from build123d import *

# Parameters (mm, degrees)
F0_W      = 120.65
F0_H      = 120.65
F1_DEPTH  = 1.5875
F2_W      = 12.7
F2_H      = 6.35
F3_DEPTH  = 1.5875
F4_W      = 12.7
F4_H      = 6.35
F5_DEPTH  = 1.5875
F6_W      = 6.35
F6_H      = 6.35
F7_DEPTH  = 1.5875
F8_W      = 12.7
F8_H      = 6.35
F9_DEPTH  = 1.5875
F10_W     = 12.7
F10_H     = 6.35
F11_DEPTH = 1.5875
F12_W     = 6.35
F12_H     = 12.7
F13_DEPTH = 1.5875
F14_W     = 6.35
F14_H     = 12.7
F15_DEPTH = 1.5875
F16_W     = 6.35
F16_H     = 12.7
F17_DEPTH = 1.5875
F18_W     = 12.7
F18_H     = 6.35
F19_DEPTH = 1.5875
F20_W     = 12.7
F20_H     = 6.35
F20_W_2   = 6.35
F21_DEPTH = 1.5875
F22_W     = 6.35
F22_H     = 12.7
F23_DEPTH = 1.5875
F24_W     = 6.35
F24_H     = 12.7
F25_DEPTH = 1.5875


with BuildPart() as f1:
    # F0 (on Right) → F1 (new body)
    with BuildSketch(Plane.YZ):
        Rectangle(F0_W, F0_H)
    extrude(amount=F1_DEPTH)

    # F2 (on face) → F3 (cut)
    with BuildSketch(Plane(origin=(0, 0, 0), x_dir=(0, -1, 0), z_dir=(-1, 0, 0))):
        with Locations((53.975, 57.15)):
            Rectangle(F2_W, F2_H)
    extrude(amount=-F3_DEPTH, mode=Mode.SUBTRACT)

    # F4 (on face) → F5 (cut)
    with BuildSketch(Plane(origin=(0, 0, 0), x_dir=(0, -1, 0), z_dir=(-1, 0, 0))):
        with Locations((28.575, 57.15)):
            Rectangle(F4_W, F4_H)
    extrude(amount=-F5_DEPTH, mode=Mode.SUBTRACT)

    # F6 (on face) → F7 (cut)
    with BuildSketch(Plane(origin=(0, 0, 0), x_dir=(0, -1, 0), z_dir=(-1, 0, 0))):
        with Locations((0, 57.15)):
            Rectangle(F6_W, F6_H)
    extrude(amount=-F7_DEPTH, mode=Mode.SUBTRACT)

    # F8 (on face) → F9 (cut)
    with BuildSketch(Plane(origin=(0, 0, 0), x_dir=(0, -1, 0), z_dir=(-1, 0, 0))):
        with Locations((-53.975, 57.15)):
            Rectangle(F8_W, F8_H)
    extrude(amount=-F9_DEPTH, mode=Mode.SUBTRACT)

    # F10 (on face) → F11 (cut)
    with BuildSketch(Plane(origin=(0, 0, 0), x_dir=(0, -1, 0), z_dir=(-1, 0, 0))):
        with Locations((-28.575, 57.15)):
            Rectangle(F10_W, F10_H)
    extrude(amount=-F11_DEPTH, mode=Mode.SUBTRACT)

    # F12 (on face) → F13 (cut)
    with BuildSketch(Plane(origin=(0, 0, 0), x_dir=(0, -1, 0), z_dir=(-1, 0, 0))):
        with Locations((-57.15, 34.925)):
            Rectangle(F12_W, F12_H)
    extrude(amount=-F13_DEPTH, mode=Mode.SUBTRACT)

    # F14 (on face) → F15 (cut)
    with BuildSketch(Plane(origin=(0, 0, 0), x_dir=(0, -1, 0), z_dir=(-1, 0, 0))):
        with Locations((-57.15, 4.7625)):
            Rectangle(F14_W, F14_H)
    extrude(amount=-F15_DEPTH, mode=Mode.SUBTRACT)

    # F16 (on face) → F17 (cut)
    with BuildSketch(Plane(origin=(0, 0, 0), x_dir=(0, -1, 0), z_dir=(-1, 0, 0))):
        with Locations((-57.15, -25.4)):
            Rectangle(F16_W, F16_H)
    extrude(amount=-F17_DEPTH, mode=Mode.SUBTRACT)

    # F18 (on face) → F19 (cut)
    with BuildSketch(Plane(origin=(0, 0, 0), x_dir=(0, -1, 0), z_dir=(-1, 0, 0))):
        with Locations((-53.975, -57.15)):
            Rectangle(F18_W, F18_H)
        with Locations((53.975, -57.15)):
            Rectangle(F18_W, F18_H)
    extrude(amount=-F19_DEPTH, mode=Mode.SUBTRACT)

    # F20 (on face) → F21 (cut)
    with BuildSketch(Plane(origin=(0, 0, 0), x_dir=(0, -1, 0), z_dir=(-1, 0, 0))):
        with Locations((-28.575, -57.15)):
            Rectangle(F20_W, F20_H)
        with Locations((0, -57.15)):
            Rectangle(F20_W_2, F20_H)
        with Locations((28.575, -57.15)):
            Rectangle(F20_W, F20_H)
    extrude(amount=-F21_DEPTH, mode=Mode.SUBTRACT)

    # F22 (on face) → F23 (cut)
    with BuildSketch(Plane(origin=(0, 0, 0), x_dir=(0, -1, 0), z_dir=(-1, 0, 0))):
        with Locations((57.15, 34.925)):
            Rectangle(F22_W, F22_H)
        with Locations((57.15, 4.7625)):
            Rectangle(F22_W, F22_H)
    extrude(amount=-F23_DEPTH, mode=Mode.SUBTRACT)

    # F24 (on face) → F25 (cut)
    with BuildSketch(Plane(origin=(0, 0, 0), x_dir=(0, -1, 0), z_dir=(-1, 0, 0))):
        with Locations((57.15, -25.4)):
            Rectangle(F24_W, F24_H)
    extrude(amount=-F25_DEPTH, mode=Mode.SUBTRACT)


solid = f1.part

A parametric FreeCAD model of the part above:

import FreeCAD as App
import Part
import Sketcher
from FreeCAD import Vector
Q = App.Units.Quantity

doc = App.newDocument("Part")
body = doc.addObject("PartDesign::Body", "Body")

# Sketch on YZ plane
sketch1 = body.newObject("Sketcher::SketchObject", "Sketch")
sketch1.AttachmentSupport = (doc.getObject("YZ_Plane"), [""])
sketch1.MapMode = "FlatFace"
sketch1.addGeometry(Part.LineSegment(Vector(-60, 60, 0), Vector(-60, -60, 0)), False)
sketch1.addGeometry(Part.LineSegment(Vector(-60, -60, 0), Vector(60, -60, 0)), False)
sketch1.addGeometry(Part.LineSegment(Vector(60, -60, 0), Vector(60, 60, 0)), False)
sketch1.addGeometry(Part.LineSegment(Vector(60, 60, 0), Vector(-60, 60, 0)), False)
sketch1.addConstraint(Sketcher.Constraint("Coincident", 0, 2, 1, 1))
sketch1.addConstraint(Sketcher.Constraint("Coincident", 1, 2, 2, 1))
sketch1.addConstraint(Sketcher.Constraint("Coincident", 2, 2, 3, 1))
sketch1.addConstraint(Sketcher.Constraint("Coincident", 3, 2, 0, 1))
sketch1.addConstraint(Sketcher.Constraint("Vertical", 0))
sketch1.addConstraint(Sketcher.Constraint("Horizontal", 1))
sketch1.addConstraint(Sketcher.Constraint("Vertical", 2))
sketch1.addConstraint(Sketcher.Constraint("Horizontal", 3))
sketch1.addConstraint(Sketcher.Constraint("Symmetric", 0, 2, 2, 2, -1, 1))
sketch1.addConstraint(Sketcher.Constraint("Equal", 3, 0))
sketch1.addConstraint(Sketcher.Constraint("DistanceX", 1, 1, 1, 2, Q("4.75 in")))
pad1 = body.newObject("PartDesign::Pad", "Pad")
pad1.Profile = sketch1
pad1.Length = Q("0.0625 in")

# Sketch on YZ plane
sketch2 = body.newObject("Sketcher::SketchObject", "Sketch001")
sketch2.AttachmentSupport = (doc.getObject("YZ_Plane"), [""])
sketch2.MapMode = "FlatFace"
sketch2.addGeometry(Part.LineSegment(Vector(-48, 60, 0), Vector(-48, 54, 0)), False)
sketch2.addGeometry(Part.LineSegment(Vector(-48, 54, 0), Vector(-60, 54, 0)), False)
sketch2.addGeometry(Part.LineSegment(Vector(-60, 54, 0), Vector(-60, 60, 0)), False)
sketch2.addGeometry(Part.LineSegment(Vector(-60, 60, 0), Vector(-48, 60, 0)), False)
sketch2.addConstraint(Sketcher.Constraint("Coincident", 0, 2, 1, 1))
sketch2.addConstraint(Sketcher.Constraint("Coincident", 1, 2, 2, 1))
sketch2.addConstraint(Sketcher.Constraint("Coincident", 2, 2, 3, 1))
sketch2.addConstraint(Sketcher.Constraint("Coincident", 3, 2, 0, 1))
sketch2.addConstraint(Sketcher.Constraint("Vertical", 0))
sketch2.addConstraint(Sketcher.Constraint("Horizontal", 1))
sketch2.addConstraint(Sketcher.Constraint("Vertical", 2))
sketch2.addConstraint(Sketcher.Constraint("Horizontal", 3))
sketch2.addConstraint(Sketcher.Constraint("DistanceX", 1, 2, 1, 1, Q("0.5 in")))
sketch2.addConstraint(Sketcher.Constraint("DistanceY", 0, 2, 0, 1, Q("0.25 in")))
sketch2.addConstraint(Sketcher.Constraint("DistanceX", 0, 2, -1, 1, Q("1.875 in")))
sketch2.addConstraint(Sketcher.Constraint("DistanceY", -1, 1, 0, 2, Q("2.125 in")))
pocket1 = body.newObject("PartDesign::Pocket", "Pocket")
pocket1.Profile = sketch2
pocket1.Length = Q("0.0625 in")
pocket1.Reversed = True

# Sketch on YZ plane
sketch3 = body.newObject("Sketcher::SketchObject", "Sketch002")
sketch3.AttachmentSupport = (doc.getObject("YZ_Plane"), [""])
sketch3.MapMode = "FlatFace"
sketch3.addGeometry(Part.LineSegment(Vector(-22, 60, 0), Vector(-22, 54, 0)), False)
sketch3.addGeometry(Part.LineSegment(Vector(-22, 54, 0), Vector(-35, 54, 0)), False)
sketch3.addGeometry(Part.LineSegment(Vector(-35, 54, 0), Vector(-35, 60, 0)), False)
sketch3.addGeometry(Part.LineSegment(Vector(-35, 60, 0), Vector(-22, 60, 0)), False)
sketch3.addConstraint(Sketcher.Constraint("Coincident", 0, 2, 1, 1))
sketch3.addConstraint(Sketcher.Constraint("Coincident", 1, 2, 2, 1))
sketch3.addConstraint(Sketcher.Constraint("Coincident", 2, 2, 3, 1))
sketch3.addConstraint(Sketcher.Constraint("Coincident", 3, 2, 0, 1))
sketch3.addConstraint(Sketcher.Constraint("Vertical", 0))
sketch3.addConstraint(Sketcher.Constraint("Horizontal", 1))
sketch3.addConstraint(Sketcher.Constraint("Vertical", 2))
sketch3.addConstraint(Sketcher.Constraint("Horizontal", 3))
sketch3.addConstraint(Sketcher.Constraint("DistanceX", 1, 2, 1, 1, Q("0.5 in")))
sketch3.addConstraint(Sketcher.Constraint("DistanceY", 0, 2, 0, 1, Q("0.25 in")))
sketch3.addConstraint(Sketcher.Constraint("DistanceX", 0, 2, -1, 1, Q("0.875 in")))
sketch3.addConstraint(Sketcher.Constraint("DistanceY", -1, 1, 0, 2, Q("2.125 in")))
pocket2 = body.newObject("PartDesign::Pocket", "Pocket001")
pocket2.Profile = sketch3
pocket2.Length = Q("0.0625 in")
pocket2.Reversed = True

# Sketch on YZ plane
sketch4 = body.newObject("Sketcher::SketchObject", "Sketch003")
sketch4.AttachmentSupport = (doc.getObject("YZ_Plane"), [""])
sketch4.MapMode = "FlatFace"
sketch4.addGeometry(Part.LineSegment(Vector(3, 60, 0), Vector(3, 54, 0)), False)
sketch4.addGeometry(Part.LineSegment(Vector(3, 54, 0), Vector(-3, 54, 0)), False)
sketch4.addGeometry(Part.LineSegment(Vector(-3, 54, 0), Vector(-3, 60, 0)), False)
sketch4.addGeometry(Part.LineSegment(Vector(-3, 60, 0), Vector(3, 60, 0)), False)
sketch4.addConstraint(Sketcher.Constraint("Coincident", 0, 2, 1, 1))
sketch4.addConstraint(Sketcher.Constraint("Coincident", 1, 2, 2, 1))
sketch4.addConstraint(Sketcher.Constraint("Coincident", 2, 2, 3, 1))
sketch4.addConstraint(Sketcher.Constraint("Coincident", 3, 2, 0, 1))
sketch4.addConstraint(Sketcher.Constraint("Vertical", 0))
sketch4.addConstraint(Sketcher.Constraint("Horizontal", 1))
sketch4.addConstraint(Sketcher.Constraint("Vertical", 2))
sketch4.addConstraint(Sketcher.Constraint("Horizontal", 3))
sketch4.addConstraint(Sketcher.Constraint("Equal", 3, 0))
sketch4.addConstraint(Sketcher.Constraint("DistanceX", 1, 2, 1, 1, Q("0.25 in")))
sketch4.addConstraint(Sketcher.Constraint("DistanceX", -1, 1, 0, 2, Q("0.125 in")))
sketch4.addConstraint(Sketcher.Constraint("DistanceY", -1, 1, 0, 2, Q("2.125 in")))
pocket3 = body.newObject("PartDesign::Pocket", "Pocket002")
pocket3.Profile = sketch4
pocket3.Length = Q("0.0625 in")
pocket3.Reversed = True

# Sketch on YZ plane
sketch5 = body.newObject("Sketcher::SketchObject", "Sketch004")
sketch5.AttachmentSupport = (doc.getObject("YZ_Plane"), [""])
sketch5.MapMode = "FlatFace"
sketch5.addGeometry(Part.LineSegment(Vector(60, 60, 0), Vector(60, 54, 0)), False)
sketch5.addGeometry(Part.LineSegment(Vector(60, 54, 0), Vector(48, 54, 0)), False)
sketch5.addGeometry(Part.LineSegment(Vector(48, 54, 0), Vector(48, 60, 0)), False)
sketch5.addGeometry(Part.LineSegment(Vector(48, 60, 0), Vector(60, 60, 0)), False)
sketch5.addConstraint(Sketcher.Constraint("Coincident", 0, 2, 1, 1))
sketch5.addConstraint(Sketcher.Constraint("Coincident", 1, 2, 2, 1))
sketch5.addConstraint(Sketcher.Constraint("Coincident", 2, 2, 3, 1))
sketch5.addConstraint(Sketcher.Constraint("Coincident", 3, 2, 0, 1))
sketch5.addConstraint(Sketcher.Constraint("Vertical", 0))
sketch5.addConstraint(Sketcher.Constraint("Horizontal", 1))
sketch5.addConstraint(Sketcher.Constraint("Vertical", 2))
sketch5.addConstraint(Sketcher.Constraint("Horizontal", 3))
sketch5.addConstraint(Sketcher.Constraint("DistanceX", 1, 2, 1, 1, Q("0.5 in")))
sketch5.addConstraint(Sketcher.Constraint("DistanceY", 0, 2, 0, 1, Q("0.25 in")))
sketch5.addConstraint(Sketcher.Constraint("DistanceX", -1, 1, 0, 2, Q("2.375 in")))
sketch5.addConstraint(Sketcher.Constraint("DistanceY", -1, 1, 0, 2, Q("2.125 in")))
pocket4 = body.newObject("PartDesign::Pocket", "Pocket003")
pocket4.Profile = sketch5
pocket4.Length = Q("0.0625 in")
pocket4.Reversed = True

# Sketch on YZ plane
sketch6 = body.newObject("Sketcher::SketchObject", "Sketch005")
sketch6.AttachmentSupport = (doc.getObject("YZ_Plane"), [""])
sketch6.MapMode = "FlatFace"
sketch6.addGeometry(Part.LineSegment(Vector(35, 60, 0), Vector(35, 54, 0)), False)
sketch6.addGeometry(Part.LineSegment(Vector(35, 54, 0), Vector(22, 54, 0)), False)
sketch6.addGeometry(Part.LineSegment(Vector(22, 54, 0), Vector(22, 60, 0)), False)
sketch6.addGeometry(Part.LineSegment(Vector(22, 60, 0), Vector(35, 60, 0)), False)
sketch6.addConstraint(Sketcher.Constraint("Coincident", 0, 2, 1, 1))
sketch6.addConstraint(Sketcher.Constraint("Coincident", 1, 2, 2, 1))
sketch6.addConstraint(Sketcher.Constraint("Coincident", 2, 2, 3, 1))
sketch6.addConstraint(Sketcher.Constraint("Coincident", 3, 2, 0, 1))
sketch6.addConstraint(Sketcher.Constraint("Vertical", 0))
sketch6.addConstraint(Sketcher.Constraint("Horizontal", 1))
sketch6.addConstraint(Sketcher.Constraint("Vertical", 2))
sketch6.addConstraint(Sketcher.Constraint("Horizontal", 3))
sketch6.addConstraint(Sketcher.Constraint("DistanceX", 1, 2, 1, 1, Q("0.5 in")))
sketch6.addConstraint(Sketcher.Constraint("DistanceY", 0, 2, 0, 1, Q("0.25 in")))
sketch6.addConstraint(Sketcher.Constraint("DistanceX", -1, 1, 0, 2, Q("1.375 in")))
sketch6.addConstraint(Sketcher.Constraint("DistanceY", -1, 1, 0, 2, Q("2.125 in")))
pocket5 = body.newObject("PartDesign::Pocket", "Pocket004")
pocket5.Profile = sketch6
pocket5.Length = Q("0.0625 in")
pocket5.Reversed = True

# Sketch on YZ plane
sketch7 = body.newObject("Sketcher::SketchObject", "Sketch006")
sketch7.AttachmentSupport = (doc.getObject("YZ_Plane"), [""])
sketch7.MapMode = "FlatFace"
sketch7.addGeometry(Part.LineSegment(Vector(60, 41, 0), Vector(60, 29, 0)), False)
sketch7.addGeometry(Part.LineSegment(Vector(60, 29, 0), Vector(54, 29, 0)), False)
sketch7.addGeometry(Part.LineSegment(Vector(54, 29, 0), Vector(54, 41, 0)), False)
sketch7.addGeometry(Part.LineSegment(Vector(54, 41, 0), Vector(60, 41, 0)), False)
sketch7.addConstraint(Sketcher.Constraint("Coincident", 0, 2, 1, 1))
sketch7.addConstraint(Sketcher.Constraint("Coincident", 1, 2, 2, 1))
sketch7.addConstraint(Sketcher.Constraint("Coincident", 2, 2, 3, 1))
sketch7.addConstraint(Sketcher.Constraint("Coincident", 3, 2, 0, 1))
sketch7.addConstraint(Sketcher.Constraint("Vertical", 0))
sketch7.addConstraint(Sketcher.Constraint("Horizontal", 1))
sketch7.addConstraint(Sketcher.Constraint("Vertical", 2))
sketch7.addConstraint(Sketcher.Constraint("Horizontal", 3))
sketch7.addConstraint(Sketcher.Constraint("DistanceY", 0, 2, 0, 1, Q("0.5 in")))
sketch7.addConstraint(Sketcher.Constraint("DistanceX", 1, 2, 1, 1, Q("0.25 in")))
sketch7.addConstraint(Sketcher.Constraint("DistanceX", -1, 1, 0, 2, Q("2.375 in")))
sketch7.addConstraint(Sketcher.Constraint("DistanceY", -1, 1, 0, 2, Q("1.125 in")))
pocket6 = body.newObject("PartDesign::Pocket", "Pocket005")
pocket6.Profile = sketch7
pocket6.Length = Q("0.0625 in")
pocket6.Reversed = True

# Sketch on YZ plane
sketch8 = body.newObject("Sketcher::SketchObject", "Sketch007")
sketch8.AttachmentSupport = (doc.getObject("YZ_Plane"), [""])
sketch8.MapMode = "FlatFace"
sketch8.addGeometry(Part.LineSegment(Vector(60, 11, 0), Vector(60, -2, 0)), False)
sketch8.addGeometry(Part.LineSegment(Vector(60, -2, 0), Vector(54, -2, 0)), False)
sketch8.addGeometry(Part.LineSegment(Vector(54, -2, 0), Vector(54, 11, 0)), False)
sketch8.addGeometry(Part.LineSegment(Vector(54, 11, 0), Vector(60, 11, 0)), False)
sketch8.addConstraint(Sketcher.Constraint("Coincident", 0, 2, 1, 1))
sketch8.addConstraint(Sketcher.Constraint("Coincident", 1, 2, 2, 1))
sketch8.addConstraint(Sketcher.Constraint("Coincident", 2, 2, 3, 1))
sketch8.addConstraint(Sketcher.Constraint("Coincident", 3, 2, 0, 1))
sketch8.addConstraint(Sketcher.Constraint("Vertical", 0))
sketch8.addConstraint(Sketcher.Constraint("Horizontal", 1))
sketch8.addConstraint(Sketcher.Constraint("Vertical", 2))
sketch8.addConstraint(Sketcher.Constraint("Horizontal", 3))
sketch8.addConstraint(Sketcher.Constraint("DistanceY", 0, 2, 0, 1, Q("0.5 in")))
sketch8.addConstraint(Sketcher.Constraint("DistanceX", 1, 2, 1, 1, Q("0.25 in")))
sketch8.addConstraint(Sketcher.Constraint("DistanceX", -1, 1, 0, 2, Q("2.375 in")))
sketch8.addConstraint(Sketcher.Constraint("DistanceY", 0, 2, -1, 1, Q("0.0625 in")))
pocket7 = body.newObject("PartDesign::Pocket", "Pocket006")
pocket7.Profile = sketch8
pocket7.Length = Q("0.0625 in")
pocket7.Reversed = True

# Sketch on YZ plane
sketch9 = body.newObject("Sketcher::SketchObject", "Sketch008")
sketch9.AttachmentSupport = (doc.getObject("YZ_Plane"), [""])
sketch9.MapMode = "FlatFace"
sketch9.addGeometry(Part.LineSegment(Vector(60, -19, 0), Vector(60, -32, 0)), False)
sketch9.addGeometry(Part.LineSegment(Vector(60, -32, 0), Vector(54, -32, 0)), False)
sketch9.addGeometry(Part.LineSegment(Vector(54, -32, 0), Vector(54, -19, 0)), False)
sketch9.addGeometry(Part.LineSegment(Vector(54, -19, 0), Vector(60, -19, 0)), False)
sketch9.addConstraint(Sketcher.Constraint("Coincident", 0, 2, 1, 1))
sketch9.addConstraint(Sketcher.Constraint("Coincident", 1, 2, 2, 1))
sketch9.addConstraint(Sketcher.Constraint("Coincident", 2, 2, 3, 1))
sketch9.addConstraint(Sketcher.Constraint("Coincident", 3, 2, 0, 1))
sketch9.addConstraint(Sketcher.Constraint("Vertical", 0))
sketch9.addConstraint(Sketcher.Constraint("Horizontal", 1))
sketch9.addConstraint(Sketcher.Constraint("Vertical", 2))
sketch9.addConstraint(Sketcher.Constraint("Horizontal", 3))
sketch9.addConstraint(Sketcher.Constraint("DistanceY", 0, 2, 0, 1, Q("0.5 in")))
sketch9.addConstraint(Sketcher.Constraint("DistanceX", 1, 2, 1, 1, Q("0.25 in")))
sketch9.addConstraint(Sketcher.Constraint("DistanceY", 0, 2, -1, 1, Q("1.25 in")))
sketch9.addConstraint(Sketcher.Constraint("DistanceX", -1, 1, 0, 2, Q("2.375 in")))
pocket8 = body.newObject("PartDesign::Pocket", "Pocket007")
pocket8.Profile = sketch9
pocket8.Length = Q("0.0625 in")
pocket8.Reversed = True

# Sketch on YZ plane
sketch10 = body.newObject("Sketcher::SketchObject", "Sketch009")
sketch10.AttachmentSupport = (doc.getObject("YZ_Plane"), [""])
sketch10.MapMode = "FlatFace"
sketch10.addGeometry(Part.LineSegment(Vector(60, -54, 0), Vector(60, -60, 0)), False)
sketch10.addGeometry(Part.LineSegment(Vector(60, -60, 0), Vector(48, -60, 0)), False)
sketch10.addGeometry(Part.LineSegment(Vector(48, -60, 0), Vector(48, -54, 0)), False)
sketch10.addGeometry(Part.LineSegment(Vector(48, -54, 0), Vector(60, -54, 0)), False)
sketch10.addGeometry(Part.LineSegment(Vector(-48, -54, 0), Vector(-48, -60, 0)), False)
sketch10.addGeometry(Part.LineSegment(Vector(-48, -60, 0), Vector(-60, -60, 0)), False)
sketch10.addGeometry(Part.LineSegment(Vector(-60, -60, 0), Vector(-60, -54, 0)), False)
sketch10.addGeometry(Part.LineSegment(Vector(-60, -54, 0), Vector(-48, -54, 0)), False)
sketch10.addConstraint(Sketcher.Constraint("Coincident", 0, 2, 1, 1))
sketch10.addConstraint(Sketcher.Constraint("Coincident", 1, 2, 2, 1))
sketch10.addConstraint(Sketcher.Constraint("Coincident", 2, 2, 3, 1))
sketch10.addConstraint(Sketcher.Constraint("Coincident", 3, 2, 0, 1))
sketch10.addConstraint(Sketcher.Constraint("Coincident", 4, 2, 5, 1))
sketch10.addConstraint(Sketcher.Constraint("Coincident", 5, 2, 6, 1))
sketch10.addConstraint(Sketcher.Constraint("Coincident", 6, 2, 7, 1))
sketch10.addConstraint(Sketcher.Constraint("Coincident", 7, 2, 4, 1))
sketch10.addConstraint(Sketcher.Constraint("Vertical", 0))
sketch10.addConstraint(Sketcher.Constraint("Horizontal", 1))
sketch10.addConstraint(Sketcher.Constraint("Vertical", 2))
sketch10.addConstraint(Sketcher.Constraint("Horizontal", 3))
sketch10.addConstraint(Sketcher.Constraint("Vertical", 4))
sketch10.addConstraint(Sketcher.Constraint("Horizontal", 5))
sketch10.addConstraint(Sketcher.Constraint("Vertical", 6))
sketch10.addConstraint(Sketcher.Constraint("Horizontal", 7))
sketch10.addConstraint(Sketcher.Constraint("Symmetric", 1, 2, 4, 2, -2))
sketch10.addConstraint(Sketcher.Constraint("Symmetric", 3, 2, 6, 2, -2))
sketch10.addConstraint(Sketcher.Constraint("DistanceX", 1, 2, 1, 1, Q("0.5 in")))
sketch10.addConstraint(Sketcher.Constraint("DistanceY", 0, 2, 0, 1, Q("0.25 in")))
sketch10.addConstraint(Sketcher.Constraint("DistanceX", 4, 2, 1, 2, Q("3.75 in")))
sketch10.addConstraint(Sketcher.Constraint("DistanceY", 0, 2, -1, 1, Q("2.375 in")))
pocket9 = body.newObject("PartDesign::Pocket", "Pocket008")
pocket9.Profile = sketch10
pocket9.Length = Q("0.0625 in")
pocket9.Reversed = True

# Sketch on YZ plane
sketch11 = body.newObject("Sketcher::SketchObject", "Sketch010")
sketch11.AttachmentSupport = (doc.getObject("YZ_Plane"), [""])
sketch11.MapMode = "FlatFace"
sketch11.addGeometry(Part.LineSegment(Vector(35, -54, 0), Vector(35, -60, 0)), False)
sketch11.addGeometry(Part.LineSegment(Vector(35, -60, 0), Vector(22, -60, 0)), False)
sketch11.addGeometry(Part.LineSegment(Vector(22, -60, 0), Vector(22, -54, 0)), False)
sketch11.addGeometry(Part.LineSegment(Vector(22, -54, 0), Vector(35, -54, 0)), False)
sketch11.addGeometry(Part.LineSegment(Vector(3, -54, 0), Vector(3, -60, 0)), False)
sketch11.addGeometry(Part.LineSegment(Vector(3, -60, 0), Vector(-3, -60, 0)), False)
sketch11.addGeometry(Part.LineSegment(Vector(-3, -60, 0), Vector(-3, -54, 0)), False)
sketch11.addGeometry(Part.LineSegment(Vector(-3, -54, 0), Vector(3, -54, 0)), False)
sketch11.addGeometry(Part.LineSegment(Vector(-22, -54, 0), Vector(-22, -60, 0)), False)
sketch11.addGeometry(Part.LineSegment(Vector(-22, -60, 0), Vector(-35, -60, 0)), False)
sketch11.addGeometry(Part.LineSegment(Vector(-35, -60, 0), Vector(-35, -54, 0)), False)
sketch11.addGeometry(Part.LineSegment(Vector(-35, -54, 0), Vector(-22, -54, 0)), False)
sketch11.addConstraint(Sketcher.Constraint("Coincident", 0, 2, 1, 1))
sketch11.addConstraint(Sketcher.Constraint("Coincident", 1, 2, 2, 1))
sketch11.addConstraint(Sketcher.Constraint("Coincident", 2, 2, 3, 1))
sketch11.addConstraint(Sketcher.Constraint("Coincident", 3, 2, 0, 1))
sketch11.addConstraint(Sketcher.Constraint("Coincident", 4, 2, 5, 1))
sketch11.addConstraint(Sketcher.Constraint("Coincident", 5, 2, 6, 1))
sketch11.addConstraint(Sketcher.Constraint("Coincident", 6, 2, 7, 1))
sketch11.addConstraint(Sketcher.Constraint("Coincident", 7, 2, 4, 1))
sketch11.addConstraint(Sketcher.Constraint("Coincident", 8, 2, 9, 1))
sketch11.addConstraint(Sketcher.Constraint("Coincident", 9, 2, 10, 1))
sketch11.addConstraint(Sketcher.Constraint("Coincident", 10, 2, 11, 1))
sketch11.addConstraint(Sketcher.Constraint("Coincident", 11, 2, 8, 1))
sketch11.addConstraint(Sketcher.Constraint("Vertical", 0))
sketch11.addConstraint(Sketcher.Constraint("Horizontal", 1))
sketch11.addConstraint(Sketcher.Constraint("Vertical", 2))
sketch11.addConstraint(Sketcher.Constraint("Horizontal", 3))
sketch11.addConstraint(Sketcher.Constraint("Vertical", 4))
sketch11.addConstraint(Sketcher.Constraint("Horizontal", 5))
sketch11.addConstraint(Sketcher.Constraint("Vertical", 6))
sketch11.addConstraint(Sketcher.Constraint("Horizontal", 7))
sketch11.addConstraint(Sketcher.Constraint("Vertical", 8))
sketch11.addConstraint(Sketcher.Constraint("Horizontal", 9))
sketch11.addConstraint(Sketcher.Constraint("Vertical", 10))
sketch11.addConstraint(Sketcher.Constraint("Horizontal", 11))
sketch11.addConstraint(Sketcher.Constraint("Symmetric", 1, 2, 8, 2, -2))
sketch11.addConstraint(Sketcher.Constraint("Symmetric", 3, 2, 10, 2, -2))
sketch11.addConstraint(Sketcher.Constraint("Horizontal", 1, 2, 4, 2))
sketch11.addConstraint(Sketcher.Constraint("Horizontal", 3, 2, 6, 2))
sketch11.addConstraint(Sketcher.Constraint("Equal", 7, 0))
sketch11.addConstraint(Sketcher.Constraint("DistanceX", 1, 2, 1, 1, Q("0.5 in")))
sketch11.addConstraint(Sketcher.Constraint("DistanceX", 5, 2, 1, 2, Q("1 in")))
sketch11.addConstraint(Sketcher.Constraint("DistanceX", 8, 2, 4, 2, Q("1 in")))
sketch11.addConstraint(Sketcher.Constraint("DistanceX", 5, 2, 5, 1, Q("0.25 in")))
sketch11.addConstraint(Sketcher.Constraint("DistanceY", 0, 2, -1, 1, Q("2.375 in")))
pocket10 = body.newObject("PartDesign::Pocket", "Pocket009")
pocket10.Profile = sketch11
pocket10.Length = Q("0.0625 in")
pocket10.Reversed = True

# Sketch on YZ plane
sketch12 = body.newObject("Sketcher::SketchObject", "Sketch011")
sketch12.AttachmentSupport = (doc.getObject("YZ_Plane"), [""])
sketch12.MapMode = "FlatFace"
sketch12.addGeometry(Part.LineSegment(Vector(-54, 41, 0), Vector(-54, 29, 0)), False)
sketch12.addGeometry(Part.LineSegment(Vector(-54, 29, 0), Vector(-60, 29, 0)), False)
sketch12.addGeometry(Part.LineSegment(Vector(-60, 29, 0), Vector(-60, 41, 0)), False)
sketch12.addGeometry(Part.LineSegment(Vector(-60, 41, 0), Vector(-54, 41, 0)), False)
sketch12.addGeometry(Part.LineSegment(Vector(-54, 11, 0), Vector(-54, -2, 0)), False)
sketch12.addGeometry(Part.LineSegment(Vector(-54, -2, 0), Vector(-60, -2, 0)), False)
sketch12.addGeometry(Part.LineSegment(Vector(-60, -2, 0), Vector(-60, 11, 0)), False)
sketch12.addGeometry(Part.LineSegment(Vector(-60, 11, 0), Vector(-54, 11, 0)), False)
sketch12.addConstraint(Sketcher.Constraint("Coincident", 0, 2, 1, 1))
sketch12.addConstraint(Sketcher.Constraint("Coincident", 1, 2, 2, 1))
sketch12.addConstraint(Sketcher.Constraint("Coincident", 2, 2, 3, 1))
sketch12.addConstraint(Sketcher.Constraint("Coincident", 3, 2, 0, 1))
sketch12.addConstraint(Sketcher.Constraint("Coincident", 4, 2, 5, 1))
sketch12.addConstraint(Sketcher.Constraint("Coincident", 5, 2, 6, 1))
sketch12.addConstraint(Sketcher.Constraint("Coincident", 6, 2, 7, 1))
sketch12.addConstraint(Sketcher.Constraint("Coincident", 7, 2, 4, 1))
sketch12.addConstraint(Sketcher.Constraint("Vertical", 0))
sketch12.addConstraint(Sketcher.Constraint("Horizontal", 1))
sketch12.addConstraint(Sketcher.Constraint("Vertical", 2))
sketch12.addConstraint(Sketcher.Constraint("Horizontal", 3))
sketch12.addConstraint(Sketcher.Constraint("Vertical", 4))
sketch12.addConstraint(Sketcher.Constraint("Horizontal", 5))
sketch12.addConstraint(Sketcher.Constraint("Vertical", 6))
sketch12.addConstraint(Sketcher.Constraint("Horizontal", 7))
sketch12.addConstraint(Sketcher.Constraint("Vertical", 3, 2, 4, 2))
sketch12.addConstraint(Sketcher.Constraint("Vertical", 2, 2, 5, 2))
sketch12.addConstraint(Sketcher.Constraint("Equal", 2, 4))
sketch12.addConstraint(Sketcher.Constraint("DistanceY", 0, 2, 0, 1, Q("0.5 in")))
sketch12.addConstraint(Sketcher.Constraint("DistanceX", 1, 2, 1, 1, Q("0.25 in")))
sketch12.addConstraint(Sketcher.Constraint("DistanceX", 0, 2, -1, 1, Q("2.125 in")))
sketch12.addConstraint(Sketcher.Constraint("DistanceY", -1, 1, 0, 2, Q("1.125 in")))
sketch12.addConstraint(Sketcher.Constraint("DistanceY", 4, 2, -1, 1, Q("0.0625 in")))
pocket11 = body.newObject("PartDesign::Pocket", "Pocket010")
pocket11.Profile = sketch12
pocket11.Length = Q("0.0625 in")
pocket11.Reversed = True

# Sketch on YZ plane
sketch13 = body.newObject("Sketcher::SketchObject", "Sketch012")
sketch13.AttachmentSupport = (doc.getObject("YZ_Plane"), [""])
sketch13.MapMode = "FlatFace"
sketch13.addGeometry(Part.LineSegment(Vector(-54, -19, 0), Vector(-54, -32, 0)), False)
sketch13.addGeometry(Part.LineSegment(Vector(-54, -32, 0), Vector(-60, -32, 0)), False)
sketch13.addGeometry(Part.LineSegment(Vector(-60, -32, 0), Vector(-60, -19, 0)), False)
sketch13.addGeometry(Part.LineSegment(Vector(-60, -19, 0), Vector(-54, -19, 0)), False)
sketch13.addConstraint(Sketcher.Constraint("Coincident", 0, 2, 1, 1))
sketch13.addConstraint(Sketcher.Constraint("Coincident", 1, 2, 2, 1))
sketch13.addConstraint(Sketcher.Constraint("Coincident", 2, 2, 3, 1))
sketch13.addConstraint(Sketcher.Constraint("Coincident", 3, 2, 0, 1))
sketch13.addConstraint(Sketcher.Constraint("Vertical", 0))
sketch13.addConstraint(Sketcher.Constraint("Horizontal", 1))
sketch13.addConstraint(Sketcher.Constraint("Vertical", 2))
sketch13.addConstraint(Sketcher.Constraint("Horizontal", 3))
sketch13.addConstraint(Sketcher.Constraint("DistanceY", 0, 2, 0, 1, Q("0.5 in")))
sketch13.addConstraint(Sketcher.Constraint("DistanceX", 1, 2, 1, 1, Q("0.25 in")))
sketch13.addConstraint(Sketcher.Constraint("DistanceY", 0, 2, -1, 1, Q("1.25 in")))
sketch13.addConstraint(Sketcher.Constraint("DistanceX", 0, 2, -1, 1, Q("2.125 in")))
pocket12 = body.newObject("PartDesign::Pocket", "Pocket011")
pocket12.Profile = sketch13
pocket12.Length = Q("0.0625 in")
pocket12.Reversed = True

doc.recompute()
